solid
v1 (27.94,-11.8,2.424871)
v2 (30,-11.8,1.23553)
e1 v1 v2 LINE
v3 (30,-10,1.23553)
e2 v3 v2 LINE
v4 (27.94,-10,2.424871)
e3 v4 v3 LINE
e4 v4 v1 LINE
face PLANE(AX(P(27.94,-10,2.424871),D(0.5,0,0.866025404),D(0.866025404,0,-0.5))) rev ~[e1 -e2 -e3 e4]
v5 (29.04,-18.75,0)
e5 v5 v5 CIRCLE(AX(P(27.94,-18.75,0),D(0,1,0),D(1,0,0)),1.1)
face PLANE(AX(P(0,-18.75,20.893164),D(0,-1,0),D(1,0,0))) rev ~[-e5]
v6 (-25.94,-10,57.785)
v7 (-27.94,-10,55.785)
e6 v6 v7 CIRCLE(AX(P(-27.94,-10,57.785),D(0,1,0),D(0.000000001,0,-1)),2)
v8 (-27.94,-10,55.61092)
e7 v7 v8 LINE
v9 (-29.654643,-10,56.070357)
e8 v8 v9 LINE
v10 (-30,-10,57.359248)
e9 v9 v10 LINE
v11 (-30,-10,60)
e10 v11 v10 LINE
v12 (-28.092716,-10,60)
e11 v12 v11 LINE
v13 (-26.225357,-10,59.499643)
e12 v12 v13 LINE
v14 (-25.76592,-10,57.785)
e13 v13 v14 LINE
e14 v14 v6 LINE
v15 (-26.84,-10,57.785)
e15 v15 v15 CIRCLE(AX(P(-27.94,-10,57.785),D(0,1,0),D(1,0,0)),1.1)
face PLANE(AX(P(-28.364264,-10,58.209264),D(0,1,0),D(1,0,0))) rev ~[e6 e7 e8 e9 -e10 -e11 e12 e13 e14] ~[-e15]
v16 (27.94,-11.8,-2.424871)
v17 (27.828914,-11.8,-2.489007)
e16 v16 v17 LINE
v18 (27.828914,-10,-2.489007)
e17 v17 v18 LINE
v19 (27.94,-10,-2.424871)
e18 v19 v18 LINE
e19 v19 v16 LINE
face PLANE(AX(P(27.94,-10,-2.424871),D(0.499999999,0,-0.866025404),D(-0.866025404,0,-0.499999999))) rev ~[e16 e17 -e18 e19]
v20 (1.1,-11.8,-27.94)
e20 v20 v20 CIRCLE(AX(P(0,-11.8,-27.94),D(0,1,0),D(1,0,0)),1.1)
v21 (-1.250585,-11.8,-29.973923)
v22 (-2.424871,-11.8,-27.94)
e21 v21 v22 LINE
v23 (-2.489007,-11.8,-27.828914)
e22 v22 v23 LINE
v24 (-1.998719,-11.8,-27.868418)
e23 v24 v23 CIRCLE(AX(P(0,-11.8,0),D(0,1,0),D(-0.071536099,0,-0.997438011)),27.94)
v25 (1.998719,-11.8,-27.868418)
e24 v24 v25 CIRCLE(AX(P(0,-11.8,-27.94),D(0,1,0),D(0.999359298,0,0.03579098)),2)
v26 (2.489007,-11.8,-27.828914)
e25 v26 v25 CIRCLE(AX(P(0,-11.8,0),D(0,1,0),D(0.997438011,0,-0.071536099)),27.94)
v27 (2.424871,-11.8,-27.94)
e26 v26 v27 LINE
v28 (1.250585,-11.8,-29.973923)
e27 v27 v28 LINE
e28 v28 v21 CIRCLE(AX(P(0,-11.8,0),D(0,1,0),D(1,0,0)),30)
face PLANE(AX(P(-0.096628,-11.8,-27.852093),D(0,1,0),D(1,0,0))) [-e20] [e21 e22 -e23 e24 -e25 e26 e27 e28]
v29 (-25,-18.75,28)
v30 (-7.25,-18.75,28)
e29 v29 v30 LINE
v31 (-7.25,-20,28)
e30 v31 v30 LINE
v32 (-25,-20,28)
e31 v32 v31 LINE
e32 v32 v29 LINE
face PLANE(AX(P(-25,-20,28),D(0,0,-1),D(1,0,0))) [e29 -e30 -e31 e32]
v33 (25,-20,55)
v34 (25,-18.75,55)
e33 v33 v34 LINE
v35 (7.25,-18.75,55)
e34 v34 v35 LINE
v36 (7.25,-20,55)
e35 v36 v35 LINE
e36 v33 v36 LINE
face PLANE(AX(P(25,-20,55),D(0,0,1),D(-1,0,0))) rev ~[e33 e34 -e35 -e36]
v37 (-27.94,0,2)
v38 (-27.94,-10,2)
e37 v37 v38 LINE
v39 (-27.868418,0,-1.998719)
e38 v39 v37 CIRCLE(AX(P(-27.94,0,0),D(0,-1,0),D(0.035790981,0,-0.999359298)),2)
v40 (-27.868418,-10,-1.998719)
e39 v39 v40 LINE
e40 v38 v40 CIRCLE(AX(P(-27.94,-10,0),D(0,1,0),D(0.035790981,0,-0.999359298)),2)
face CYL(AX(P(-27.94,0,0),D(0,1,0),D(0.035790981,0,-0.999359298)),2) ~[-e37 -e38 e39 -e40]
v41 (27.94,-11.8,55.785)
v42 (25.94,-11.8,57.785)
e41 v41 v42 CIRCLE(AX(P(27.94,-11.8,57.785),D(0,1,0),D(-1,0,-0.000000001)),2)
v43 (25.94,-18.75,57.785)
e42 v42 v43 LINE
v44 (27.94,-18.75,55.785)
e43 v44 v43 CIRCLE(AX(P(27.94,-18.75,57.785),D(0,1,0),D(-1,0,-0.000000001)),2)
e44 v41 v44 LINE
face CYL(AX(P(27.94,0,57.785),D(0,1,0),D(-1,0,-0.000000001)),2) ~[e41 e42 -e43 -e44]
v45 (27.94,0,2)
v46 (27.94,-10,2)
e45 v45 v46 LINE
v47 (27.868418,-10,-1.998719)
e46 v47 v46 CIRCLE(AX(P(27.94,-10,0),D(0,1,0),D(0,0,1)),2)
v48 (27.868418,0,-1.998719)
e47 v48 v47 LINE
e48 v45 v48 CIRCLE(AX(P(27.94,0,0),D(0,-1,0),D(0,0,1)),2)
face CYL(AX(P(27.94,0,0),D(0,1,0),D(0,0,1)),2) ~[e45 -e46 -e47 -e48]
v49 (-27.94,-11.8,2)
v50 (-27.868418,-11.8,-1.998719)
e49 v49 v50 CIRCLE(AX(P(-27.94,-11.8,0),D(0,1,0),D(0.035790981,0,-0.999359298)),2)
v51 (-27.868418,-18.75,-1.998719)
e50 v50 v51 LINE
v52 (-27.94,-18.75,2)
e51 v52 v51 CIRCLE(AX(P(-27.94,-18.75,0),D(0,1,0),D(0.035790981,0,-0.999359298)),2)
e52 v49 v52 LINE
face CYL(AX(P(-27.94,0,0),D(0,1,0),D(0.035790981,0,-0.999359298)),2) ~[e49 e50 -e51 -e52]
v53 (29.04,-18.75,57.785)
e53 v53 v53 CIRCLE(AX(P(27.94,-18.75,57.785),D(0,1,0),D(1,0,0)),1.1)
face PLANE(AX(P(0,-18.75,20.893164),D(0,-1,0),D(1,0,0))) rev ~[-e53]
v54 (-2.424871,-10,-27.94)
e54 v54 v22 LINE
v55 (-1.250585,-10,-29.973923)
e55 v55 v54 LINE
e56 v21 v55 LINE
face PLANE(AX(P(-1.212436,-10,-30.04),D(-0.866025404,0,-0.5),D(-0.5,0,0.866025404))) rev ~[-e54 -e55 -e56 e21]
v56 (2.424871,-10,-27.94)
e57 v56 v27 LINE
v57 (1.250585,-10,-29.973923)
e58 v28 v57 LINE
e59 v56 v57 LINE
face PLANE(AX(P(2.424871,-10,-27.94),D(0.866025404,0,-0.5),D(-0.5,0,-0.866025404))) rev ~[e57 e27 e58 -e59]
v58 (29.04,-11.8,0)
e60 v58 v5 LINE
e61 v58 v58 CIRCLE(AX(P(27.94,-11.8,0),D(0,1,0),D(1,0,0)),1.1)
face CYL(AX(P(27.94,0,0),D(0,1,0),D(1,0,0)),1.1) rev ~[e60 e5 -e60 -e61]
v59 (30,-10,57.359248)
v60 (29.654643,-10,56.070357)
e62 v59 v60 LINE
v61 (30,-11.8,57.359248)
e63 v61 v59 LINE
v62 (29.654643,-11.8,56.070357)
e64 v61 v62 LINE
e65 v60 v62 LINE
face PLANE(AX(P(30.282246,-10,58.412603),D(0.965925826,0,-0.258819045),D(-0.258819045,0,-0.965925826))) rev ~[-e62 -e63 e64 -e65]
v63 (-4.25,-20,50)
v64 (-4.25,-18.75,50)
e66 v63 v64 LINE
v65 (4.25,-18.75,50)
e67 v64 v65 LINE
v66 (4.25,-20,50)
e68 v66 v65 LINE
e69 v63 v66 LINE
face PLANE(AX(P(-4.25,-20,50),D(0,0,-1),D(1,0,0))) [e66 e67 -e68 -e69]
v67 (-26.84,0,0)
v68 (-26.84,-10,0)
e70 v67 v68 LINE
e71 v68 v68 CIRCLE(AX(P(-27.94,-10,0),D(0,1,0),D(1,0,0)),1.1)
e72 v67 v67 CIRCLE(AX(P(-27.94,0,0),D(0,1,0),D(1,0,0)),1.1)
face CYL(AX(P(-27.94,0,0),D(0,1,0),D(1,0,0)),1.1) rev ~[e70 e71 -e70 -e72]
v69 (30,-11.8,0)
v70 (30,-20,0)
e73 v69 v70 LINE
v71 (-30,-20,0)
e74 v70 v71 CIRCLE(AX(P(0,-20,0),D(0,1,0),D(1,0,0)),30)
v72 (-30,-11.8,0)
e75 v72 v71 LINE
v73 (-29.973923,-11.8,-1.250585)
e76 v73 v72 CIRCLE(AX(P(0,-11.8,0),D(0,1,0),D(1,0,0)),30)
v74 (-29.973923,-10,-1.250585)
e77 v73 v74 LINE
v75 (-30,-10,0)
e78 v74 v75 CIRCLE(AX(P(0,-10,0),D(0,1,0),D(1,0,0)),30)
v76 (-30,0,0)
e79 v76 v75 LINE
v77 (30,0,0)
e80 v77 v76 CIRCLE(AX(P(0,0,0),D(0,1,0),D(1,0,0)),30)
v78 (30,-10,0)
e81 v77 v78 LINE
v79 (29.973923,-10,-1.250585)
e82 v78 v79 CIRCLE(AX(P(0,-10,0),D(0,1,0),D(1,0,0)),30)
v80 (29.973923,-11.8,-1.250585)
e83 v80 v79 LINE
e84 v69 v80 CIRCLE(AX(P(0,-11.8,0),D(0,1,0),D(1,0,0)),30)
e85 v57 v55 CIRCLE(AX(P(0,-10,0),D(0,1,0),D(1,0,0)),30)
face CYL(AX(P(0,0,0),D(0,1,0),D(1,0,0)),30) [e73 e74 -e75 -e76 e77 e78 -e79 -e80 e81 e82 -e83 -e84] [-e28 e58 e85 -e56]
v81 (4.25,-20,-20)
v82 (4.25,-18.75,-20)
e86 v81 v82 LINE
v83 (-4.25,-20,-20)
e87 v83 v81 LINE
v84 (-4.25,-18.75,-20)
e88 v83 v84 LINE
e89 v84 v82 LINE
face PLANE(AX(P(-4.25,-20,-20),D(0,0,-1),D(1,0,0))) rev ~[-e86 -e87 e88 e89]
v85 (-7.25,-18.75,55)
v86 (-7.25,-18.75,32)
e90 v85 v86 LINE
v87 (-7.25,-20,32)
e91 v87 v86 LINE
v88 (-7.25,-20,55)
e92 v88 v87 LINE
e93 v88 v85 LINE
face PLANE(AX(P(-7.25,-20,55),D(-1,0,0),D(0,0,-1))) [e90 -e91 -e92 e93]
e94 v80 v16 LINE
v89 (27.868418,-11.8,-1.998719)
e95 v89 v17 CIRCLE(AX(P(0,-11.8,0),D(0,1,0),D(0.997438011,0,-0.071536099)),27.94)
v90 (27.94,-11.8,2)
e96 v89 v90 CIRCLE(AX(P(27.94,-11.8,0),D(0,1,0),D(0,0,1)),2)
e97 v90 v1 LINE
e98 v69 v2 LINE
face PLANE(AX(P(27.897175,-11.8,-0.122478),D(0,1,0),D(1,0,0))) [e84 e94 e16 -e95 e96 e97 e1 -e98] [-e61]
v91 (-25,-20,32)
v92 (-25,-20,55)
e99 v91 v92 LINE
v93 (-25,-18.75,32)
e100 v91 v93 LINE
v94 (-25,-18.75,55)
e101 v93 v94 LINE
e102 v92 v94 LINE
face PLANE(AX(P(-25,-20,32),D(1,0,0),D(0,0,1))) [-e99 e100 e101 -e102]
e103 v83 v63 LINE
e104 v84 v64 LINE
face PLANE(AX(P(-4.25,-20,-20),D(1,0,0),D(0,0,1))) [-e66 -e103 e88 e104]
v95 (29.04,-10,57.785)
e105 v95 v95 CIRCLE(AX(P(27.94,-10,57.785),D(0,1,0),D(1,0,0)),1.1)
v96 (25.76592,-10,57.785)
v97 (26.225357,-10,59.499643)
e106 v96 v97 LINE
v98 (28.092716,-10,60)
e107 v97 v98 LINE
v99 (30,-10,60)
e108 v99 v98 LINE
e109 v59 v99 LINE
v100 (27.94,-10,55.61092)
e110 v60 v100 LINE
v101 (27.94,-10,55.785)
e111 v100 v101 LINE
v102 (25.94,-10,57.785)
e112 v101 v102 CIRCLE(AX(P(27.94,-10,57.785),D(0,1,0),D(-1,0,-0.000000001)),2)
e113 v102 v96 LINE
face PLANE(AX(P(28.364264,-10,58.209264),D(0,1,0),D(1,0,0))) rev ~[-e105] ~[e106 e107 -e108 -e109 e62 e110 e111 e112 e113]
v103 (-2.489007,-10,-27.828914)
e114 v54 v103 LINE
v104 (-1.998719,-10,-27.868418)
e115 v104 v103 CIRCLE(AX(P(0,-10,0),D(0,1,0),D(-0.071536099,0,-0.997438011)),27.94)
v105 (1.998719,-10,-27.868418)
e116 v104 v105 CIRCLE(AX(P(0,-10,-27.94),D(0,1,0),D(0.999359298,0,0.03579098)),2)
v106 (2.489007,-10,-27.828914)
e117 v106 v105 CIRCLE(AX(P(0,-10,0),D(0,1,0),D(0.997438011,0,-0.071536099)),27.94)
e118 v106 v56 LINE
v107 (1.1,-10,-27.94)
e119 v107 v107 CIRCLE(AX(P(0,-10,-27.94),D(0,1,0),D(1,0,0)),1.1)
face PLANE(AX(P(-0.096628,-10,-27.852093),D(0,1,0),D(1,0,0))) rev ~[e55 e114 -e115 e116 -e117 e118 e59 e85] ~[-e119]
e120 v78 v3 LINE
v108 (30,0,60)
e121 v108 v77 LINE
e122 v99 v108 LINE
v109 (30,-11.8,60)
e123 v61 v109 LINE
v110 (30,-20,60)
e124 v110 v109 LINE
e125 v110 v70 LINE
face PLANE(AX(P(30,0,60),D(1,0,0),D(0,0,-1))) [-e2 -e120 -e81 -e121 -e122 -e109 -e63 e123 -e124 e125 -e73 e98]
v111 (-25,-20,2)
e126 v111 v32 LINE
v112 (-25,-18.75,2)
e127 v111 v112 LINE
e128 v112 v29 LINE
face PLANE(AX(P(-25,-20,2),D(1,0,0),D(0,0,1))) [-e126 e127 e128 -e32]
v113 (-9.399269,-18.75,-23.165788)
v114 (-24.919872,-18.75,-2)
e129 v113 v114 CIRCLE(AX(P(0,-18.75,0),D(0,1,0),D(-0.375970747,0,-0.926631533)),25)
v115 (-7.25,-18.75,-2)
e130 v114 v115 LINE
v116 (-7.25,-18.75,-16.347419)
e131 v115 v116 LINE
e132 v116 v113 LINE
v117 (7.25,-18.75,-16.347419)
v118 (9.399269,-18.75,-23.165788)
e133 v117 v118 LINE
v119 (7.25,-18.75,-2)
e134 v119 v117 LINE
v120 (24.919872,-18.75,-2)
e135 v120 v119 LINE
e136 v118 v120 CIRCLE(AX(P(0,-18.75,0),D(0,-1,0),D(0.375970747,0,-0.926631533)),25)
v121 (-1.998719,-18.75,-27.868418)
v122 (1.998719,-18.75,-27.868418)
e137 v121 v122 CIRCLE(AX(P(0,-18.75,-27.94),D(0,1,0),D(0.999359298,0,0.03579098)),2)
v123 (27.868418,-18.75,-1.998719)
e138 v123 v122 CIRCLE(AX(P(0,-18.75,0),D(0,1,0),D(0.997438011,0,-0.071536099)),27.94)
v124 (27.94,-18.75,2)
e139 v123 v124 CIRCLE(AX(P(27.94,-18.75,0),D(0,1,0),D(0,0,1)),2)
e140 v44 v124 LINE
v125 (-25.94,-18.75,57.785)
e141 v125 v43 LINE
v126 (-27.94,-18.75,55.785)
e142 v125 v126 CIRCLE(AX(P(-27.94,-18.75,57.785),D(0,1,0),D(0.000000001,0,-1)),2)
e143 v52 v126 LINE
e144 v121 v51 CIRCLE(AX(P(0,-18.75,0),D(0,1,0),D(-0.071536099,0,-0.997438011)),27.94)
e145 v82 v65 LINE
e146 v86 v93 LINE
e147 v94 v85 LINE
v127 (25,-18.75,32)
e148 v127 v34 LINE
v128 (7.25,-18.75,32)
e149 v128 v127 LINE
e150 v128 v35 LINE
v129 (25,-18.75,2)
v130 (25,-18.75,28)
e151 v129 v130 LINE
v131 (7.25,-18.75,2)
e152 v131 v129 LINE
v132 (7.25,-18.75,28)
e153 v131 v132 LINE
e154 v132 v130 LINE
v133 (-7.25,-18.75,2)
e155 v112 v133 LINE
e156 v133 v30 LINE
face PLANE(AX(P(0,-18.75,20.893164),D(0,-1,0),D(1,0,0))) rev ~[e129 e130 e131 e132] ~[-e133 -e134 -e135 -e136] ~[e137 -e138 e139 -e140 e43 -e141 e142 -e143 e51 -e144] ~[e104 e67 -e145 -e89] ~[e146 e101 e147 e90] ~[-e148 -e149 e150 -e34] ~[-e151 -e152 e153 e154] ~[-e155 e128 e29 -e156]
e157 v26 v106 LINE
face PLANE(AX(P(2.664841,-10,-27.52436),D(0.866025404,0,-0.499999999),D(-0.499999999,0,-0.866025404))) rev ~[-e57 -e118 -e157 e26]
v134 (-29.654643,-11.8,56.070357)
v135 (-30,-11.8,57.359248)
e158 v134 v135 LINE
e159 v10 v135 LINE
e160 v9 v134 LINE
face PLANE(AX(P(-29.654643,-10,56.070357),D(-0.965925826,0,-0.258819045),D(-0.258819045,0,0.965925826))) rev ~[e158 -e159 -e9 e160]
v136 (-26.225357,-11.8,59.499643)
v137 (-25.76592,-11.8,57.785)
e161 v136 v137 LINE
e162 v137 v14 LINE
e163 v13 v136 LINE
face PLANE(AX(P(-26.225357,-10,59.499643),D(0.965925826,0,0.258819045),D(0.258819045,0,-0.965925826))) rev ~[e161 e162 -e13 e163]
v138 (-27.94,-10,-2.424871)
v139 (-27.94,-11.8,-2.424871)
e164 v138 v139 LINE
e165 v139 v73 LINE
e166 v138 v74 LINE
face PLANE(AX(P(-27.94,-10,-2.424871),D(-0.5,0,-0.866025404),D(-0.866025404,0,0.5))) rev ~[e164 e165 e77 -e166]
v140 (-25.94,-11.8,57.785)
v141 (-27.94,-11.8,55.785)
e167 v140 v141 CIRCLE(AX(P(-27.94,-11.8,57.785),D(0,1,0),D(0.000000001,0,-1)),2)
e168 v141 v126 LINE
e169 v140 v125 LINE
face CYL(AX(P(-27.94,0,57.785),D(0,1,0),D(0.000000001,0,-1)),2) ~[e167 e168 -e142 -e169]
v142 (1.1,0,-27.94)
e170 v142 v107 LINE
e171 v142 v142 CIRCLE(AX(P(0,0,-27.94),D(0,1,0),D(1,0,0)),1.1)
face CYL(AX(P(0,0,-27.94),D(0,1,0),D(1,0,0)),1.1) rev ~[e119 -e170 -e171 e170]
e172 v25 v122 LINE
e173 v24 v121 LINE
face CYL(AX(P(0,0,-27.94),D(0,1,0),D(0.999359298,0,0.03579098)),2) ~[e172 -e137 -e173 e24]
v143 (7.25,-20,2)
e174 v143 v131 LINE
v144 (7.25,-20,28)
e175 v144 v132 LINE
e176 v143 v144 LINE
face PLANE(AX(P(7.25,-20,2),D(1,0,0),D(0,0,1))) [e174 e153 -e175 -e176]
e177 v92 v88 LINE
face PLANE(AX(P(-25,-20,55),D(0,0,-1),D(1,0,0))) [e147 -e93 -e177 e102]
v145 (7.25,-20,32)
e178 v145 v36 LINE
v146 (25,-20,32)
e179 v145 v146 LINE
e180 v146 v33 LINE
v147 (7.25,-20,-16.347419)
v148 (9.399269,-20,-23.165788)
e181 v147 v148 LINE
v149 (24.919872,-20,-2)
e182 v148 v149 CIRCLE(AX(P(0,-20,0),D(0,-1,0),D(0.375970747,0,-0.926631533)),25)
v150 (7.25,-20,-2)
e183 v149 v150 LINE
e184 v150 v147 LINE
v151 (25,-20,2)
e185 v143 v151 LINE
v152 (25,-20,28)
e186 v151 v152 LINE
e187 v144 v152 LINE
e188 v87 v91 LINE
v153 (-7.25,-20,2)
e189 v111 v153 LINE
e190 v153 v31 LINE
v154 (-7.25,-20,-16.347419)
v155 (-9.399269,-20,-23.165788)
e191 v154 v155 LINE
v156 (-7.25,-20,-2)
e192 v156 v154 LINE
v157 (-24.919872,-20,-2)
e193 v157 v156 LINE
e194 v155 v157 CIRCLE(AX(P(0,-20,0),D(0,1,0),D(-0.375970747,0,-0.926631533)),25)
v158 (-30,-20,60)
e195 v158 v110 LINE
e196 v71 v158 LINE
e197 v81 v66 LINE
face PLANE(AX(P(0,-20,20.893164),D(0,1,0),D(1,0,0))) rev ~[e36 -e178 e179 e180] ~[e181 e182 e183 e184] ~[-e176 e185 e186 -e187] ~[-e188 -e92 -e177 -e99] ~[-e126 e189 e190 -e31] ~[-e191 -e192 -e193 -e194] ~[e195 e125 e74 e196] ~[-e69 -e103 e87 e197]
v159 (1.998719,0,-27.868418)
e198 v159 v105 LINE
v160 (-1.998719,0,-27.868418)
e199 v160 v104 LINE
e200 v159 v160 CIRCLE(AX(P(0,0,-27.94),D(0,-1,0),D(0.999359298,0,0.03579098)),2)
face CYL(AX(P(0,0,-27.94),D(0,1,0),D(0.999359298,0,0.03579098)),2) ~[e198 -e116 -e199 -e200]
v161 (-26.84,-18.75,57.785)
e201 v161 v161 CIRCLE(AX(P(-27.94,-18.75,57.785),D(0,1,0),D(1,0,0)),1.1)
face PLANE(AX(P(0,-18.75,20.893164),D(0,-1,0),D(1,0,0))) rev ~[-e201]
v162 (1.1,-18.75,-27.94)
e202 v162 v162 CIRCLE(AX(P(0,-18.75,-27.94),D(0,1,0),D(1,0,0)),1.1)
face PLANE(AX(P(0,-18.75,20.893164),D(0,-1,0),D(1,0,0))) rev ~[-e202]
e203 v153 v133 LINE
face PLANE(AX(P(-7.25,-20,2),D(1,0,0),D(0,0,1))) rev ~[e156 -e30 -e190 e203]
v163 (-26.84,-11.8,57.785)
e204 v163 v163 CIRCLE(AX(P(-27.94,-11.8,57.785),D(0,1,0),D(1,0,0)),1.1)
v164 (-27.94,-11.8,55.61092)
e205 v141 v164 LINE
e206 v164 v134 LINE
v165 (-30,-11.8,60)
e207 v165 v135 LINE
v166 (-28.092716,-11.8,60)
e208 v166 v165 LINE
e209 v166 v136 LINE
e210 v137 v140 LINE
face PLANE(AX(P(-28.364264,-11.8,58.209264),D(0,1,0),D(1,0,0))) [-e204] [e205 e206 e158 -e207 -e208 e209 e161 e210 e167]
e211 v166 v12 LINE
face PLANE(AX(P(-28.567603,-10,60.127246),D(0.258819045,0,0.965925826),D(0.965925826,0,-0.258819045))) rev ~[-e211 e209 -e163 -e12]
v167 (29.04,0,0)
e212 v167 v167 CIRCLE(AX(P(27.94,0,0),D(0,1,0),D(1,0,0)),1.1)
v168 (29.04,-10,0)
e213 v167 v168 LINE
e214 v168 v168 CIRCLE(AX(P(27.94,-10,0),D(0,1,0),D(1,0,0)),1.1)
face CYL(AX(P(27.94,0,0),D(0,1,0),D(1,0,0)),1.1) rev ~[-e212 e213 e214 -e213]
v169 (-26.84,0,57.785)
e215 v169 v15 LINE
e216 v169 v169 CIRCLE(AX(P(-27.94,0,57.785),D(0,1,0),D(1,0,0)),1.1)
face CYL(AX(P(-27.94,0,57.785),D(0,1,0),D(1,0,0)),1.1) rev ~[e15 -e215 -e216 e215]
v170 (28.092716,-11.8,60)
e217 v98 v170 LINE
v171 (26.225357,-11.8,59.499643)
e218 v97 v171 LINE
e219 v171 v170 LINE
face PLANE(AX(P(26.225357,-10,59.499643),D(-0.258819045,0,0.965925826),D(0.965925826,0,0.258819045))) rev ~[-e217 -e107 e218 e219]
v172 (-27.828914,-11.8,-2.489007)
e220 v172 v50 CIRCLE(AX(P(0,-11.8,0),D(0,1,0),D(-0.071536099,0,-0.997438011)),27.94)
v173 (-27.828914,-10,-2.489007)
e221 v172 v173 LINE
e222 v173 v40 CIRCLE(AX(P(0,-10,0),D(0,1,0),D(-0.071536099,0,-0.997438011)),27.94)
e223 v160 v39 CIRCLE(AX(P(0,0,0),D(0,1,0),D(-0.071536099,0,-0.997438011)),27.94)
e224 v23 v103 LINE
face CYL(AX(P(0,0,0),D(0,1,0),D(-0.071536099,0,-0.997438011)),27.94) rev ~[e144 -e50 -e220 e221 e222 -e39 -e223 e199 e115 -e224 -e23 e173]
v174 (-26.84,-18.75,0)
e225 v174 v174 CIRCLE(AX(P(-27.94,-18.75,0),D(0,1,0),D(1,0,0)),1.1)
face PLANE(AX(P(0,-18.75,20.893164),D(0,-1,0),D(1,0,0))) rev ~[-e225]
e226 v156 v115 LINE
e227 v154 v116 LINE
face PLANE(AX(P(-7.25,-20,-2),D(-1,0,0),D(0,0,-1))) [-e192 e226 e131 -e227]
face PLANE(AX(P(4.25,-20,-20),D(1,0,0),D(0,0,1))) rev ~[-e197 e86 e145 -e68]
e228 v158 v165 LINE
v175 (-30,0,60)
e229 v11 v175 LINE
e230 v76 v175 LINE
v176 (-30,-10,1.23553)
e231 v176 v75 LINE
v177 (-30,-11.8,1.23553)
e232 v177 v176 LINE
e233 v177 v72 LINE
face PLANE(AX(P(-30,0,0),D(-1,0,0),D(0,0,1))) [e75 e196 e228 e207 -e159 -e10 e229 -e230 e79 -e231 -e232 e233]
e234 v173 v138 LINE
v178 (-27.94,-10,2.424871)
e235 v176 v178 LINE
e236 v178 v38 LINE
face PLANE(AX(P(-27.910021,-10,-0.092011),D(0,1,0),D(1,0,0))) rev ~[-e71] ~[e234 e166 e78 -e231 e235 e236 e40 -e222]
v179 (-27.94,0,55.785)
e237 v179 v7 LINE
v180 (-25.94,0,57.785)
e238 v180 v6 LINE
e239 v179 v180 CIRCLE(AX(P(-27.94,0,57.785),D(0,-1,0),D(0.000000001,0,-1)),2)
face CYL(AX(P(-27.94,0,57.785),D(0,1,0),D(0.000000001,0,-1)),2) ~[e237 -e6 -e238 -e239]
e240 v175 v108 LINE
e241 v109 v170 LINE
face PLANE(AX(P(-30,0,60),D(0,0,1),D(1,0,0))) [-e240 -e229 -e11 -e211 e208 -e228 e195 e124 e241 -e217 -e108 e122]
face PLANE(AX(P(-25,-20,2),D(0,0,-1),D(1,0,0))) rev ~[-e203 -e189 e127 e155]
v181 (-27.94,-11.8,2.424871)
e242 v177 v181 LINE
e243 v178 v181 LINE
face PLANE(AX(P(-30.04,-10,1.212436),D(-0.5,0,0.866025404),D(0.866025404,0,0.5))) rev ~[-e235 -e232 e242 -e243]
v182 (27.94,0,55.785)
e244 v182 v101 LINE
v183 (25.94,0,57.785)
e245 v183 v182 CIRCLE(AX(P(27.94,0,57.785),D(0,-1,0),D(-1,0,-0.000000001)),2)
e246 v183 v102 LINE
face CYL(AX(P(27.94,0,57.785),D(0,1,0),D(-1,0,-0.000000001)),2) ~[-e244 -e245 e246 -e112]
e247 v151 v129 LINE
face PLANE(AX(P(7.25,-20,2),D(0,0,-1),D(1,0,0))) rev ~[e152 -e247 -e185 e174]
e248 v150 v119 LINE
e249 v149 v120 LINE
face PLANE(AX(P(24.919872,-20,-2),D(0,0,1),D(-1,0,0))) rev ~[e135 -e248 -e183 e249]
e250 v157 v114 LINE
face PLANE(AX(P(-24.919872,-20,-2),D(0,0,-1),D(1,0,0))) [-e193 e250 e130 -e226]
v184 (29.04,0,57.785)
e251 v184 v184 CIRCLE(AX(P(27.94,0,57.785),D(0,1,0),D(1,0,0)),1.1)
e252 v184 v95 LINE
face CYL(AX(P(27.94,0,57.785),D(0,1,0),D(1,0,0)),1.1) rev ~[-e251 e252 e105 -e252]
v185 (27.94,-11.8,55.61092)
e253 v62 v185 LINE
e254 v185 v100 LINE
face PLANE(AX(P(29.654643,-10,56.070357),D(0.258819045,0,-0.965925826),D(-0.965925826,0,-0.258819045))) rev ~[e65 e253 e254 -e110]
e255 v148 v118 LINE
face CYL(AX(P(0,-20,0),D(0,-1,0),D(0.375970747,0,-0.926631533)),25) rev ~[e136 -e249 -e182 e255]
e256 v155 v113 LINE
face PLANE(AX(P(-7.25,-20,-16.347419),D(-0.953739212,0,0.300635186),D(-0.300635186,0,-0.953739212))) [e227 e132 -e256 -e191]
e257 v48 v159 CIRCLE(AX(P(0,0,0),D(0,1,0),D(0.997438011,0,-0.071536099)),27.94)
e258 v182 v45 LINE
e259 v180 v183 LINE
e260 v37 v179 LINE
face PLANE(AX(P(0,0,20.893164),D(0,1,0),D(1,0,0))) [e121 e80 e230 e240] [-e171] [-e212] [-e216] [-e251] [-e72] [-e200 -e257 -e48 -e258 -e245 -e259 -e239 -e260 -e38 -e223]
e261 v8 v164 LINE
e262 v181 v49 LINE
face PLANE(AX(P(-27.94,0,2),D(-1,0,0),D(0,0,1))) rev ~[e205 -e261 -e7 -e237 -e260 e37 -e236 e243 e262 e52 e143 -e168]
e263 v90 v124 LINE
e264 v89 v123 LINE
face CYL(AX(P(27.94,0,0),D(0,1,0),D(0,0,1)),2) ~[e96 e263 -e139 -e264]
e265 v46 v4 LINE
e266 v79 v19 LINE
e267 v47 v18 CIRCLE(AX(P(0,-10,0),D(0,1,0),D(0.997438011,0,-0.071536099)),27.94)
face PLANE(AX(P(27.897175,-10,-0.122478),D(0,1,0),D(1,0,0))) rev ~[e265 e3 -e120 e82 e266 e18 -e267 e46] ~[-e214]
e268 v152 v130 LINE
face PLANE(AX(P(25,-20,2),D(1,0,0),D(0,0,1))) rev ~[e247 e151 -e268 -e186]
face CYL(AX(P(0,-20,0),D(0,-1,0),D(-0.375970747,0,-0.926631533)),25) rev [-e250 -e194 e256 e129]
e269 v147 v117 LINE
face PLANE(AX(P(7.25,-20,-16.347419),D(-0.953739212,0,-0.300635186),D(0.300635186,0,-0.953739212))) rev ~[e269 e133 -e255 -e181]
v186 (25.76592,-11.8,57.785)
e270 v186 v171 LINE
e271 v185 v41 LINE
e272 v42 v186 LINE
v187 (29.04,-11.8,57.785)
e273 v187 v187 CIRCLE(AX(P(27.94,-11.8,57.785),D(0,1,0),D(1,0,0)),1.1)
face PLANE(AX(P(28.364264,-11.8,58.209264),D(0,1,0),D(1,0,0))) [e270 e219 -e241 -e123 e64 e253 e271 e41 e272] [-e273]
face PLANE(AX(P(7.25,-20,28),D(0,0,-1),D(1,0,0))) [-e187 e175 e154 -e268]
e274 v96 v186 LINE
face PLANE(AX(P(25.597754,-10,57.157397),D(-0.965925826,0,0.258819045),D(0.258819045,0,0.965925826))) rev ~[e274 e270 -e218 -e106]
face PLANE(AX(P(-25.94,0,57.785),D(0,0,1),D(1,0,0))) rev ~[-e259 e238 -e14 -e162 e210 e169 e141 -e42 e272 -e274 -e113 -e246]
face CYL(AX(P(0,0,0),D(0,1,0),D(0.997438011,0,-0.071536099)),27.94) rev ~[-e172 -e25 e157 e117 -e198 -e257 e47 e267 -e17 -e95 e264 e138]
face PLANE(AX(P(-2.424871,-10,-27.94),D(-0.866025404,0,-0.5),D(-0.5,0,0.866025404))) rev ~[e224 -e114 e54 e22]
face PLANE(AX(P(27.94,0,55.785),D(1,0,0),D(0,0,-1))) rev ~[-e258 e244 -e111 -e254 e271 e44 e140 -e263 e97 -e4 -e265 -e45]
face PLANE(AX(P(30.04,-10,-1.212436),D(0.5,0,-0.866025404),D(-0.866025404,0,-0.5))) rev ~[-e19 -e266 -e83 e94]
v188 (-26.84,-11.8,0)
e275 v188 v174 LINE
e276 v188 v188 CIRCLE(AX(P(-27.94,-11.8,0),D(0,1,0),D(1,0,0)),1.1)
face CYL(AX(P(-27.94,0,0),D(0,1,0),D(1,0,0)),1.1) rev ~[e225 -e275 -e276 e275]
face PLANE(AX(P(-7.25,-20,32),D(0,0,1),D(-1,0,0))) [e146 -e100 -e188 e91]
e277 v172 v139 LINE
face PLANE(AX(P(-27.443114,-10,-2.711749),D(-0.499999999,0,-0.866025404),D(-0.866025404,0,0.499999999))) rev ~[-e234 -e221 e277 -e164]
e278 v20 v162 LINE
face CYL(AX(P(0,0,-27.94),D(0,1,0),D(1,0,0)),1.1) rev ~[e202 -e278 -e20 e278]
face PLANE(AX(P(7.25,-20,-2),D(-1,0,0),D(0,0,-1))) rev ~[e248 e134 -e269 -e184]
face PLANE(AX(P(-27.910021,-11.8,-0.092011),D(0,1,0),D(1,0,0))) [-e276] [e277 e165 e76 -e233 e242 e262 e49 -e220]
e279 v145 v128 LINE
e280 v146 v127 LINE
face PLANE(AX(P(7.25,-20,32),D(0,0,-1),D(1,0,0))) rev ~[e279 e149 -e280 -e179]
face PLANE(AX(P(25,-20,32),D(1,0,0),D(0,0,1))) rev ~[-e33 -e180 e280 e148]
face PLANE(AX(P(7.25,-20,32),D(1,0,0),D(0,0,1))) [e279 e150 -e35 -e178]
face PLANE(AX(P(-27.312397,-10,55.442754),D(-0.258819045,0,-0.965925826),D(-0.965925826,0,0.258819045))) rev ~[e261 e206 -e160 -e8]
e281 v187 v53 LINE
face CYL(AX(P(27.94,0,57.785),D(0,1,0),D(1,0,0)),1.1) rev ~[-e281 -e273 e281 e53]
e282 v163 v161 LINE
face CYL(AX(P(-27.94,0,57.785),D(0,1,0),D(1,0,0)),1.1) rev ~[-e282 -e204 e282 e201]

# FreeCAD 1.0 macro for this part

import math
import FreeCAD as App
import Part
import Sketcher

V = App.Vector
Q = App.Units.Quantity

doc = App.newDocument("Part")
body = doc.addObject("PartDesign::Body", "Body")

# Sketch on XZ plane
sketch1 = body.newObject("Sketcher::SketchObject", "Sketch")
sketch1.AttachmentSupport = (doc.getObject("XZ_Plane"), [""])
sketch1.MapMode = "FlatFace"
sketch1.addGeometry(Part.LineSegment(V(-30, 0, 0), V(-30, 60, 0)), False)
sketch1.addGeometry(Part.LineSegment(V(-30, 60, 0), V(30, 60, 0)), False)
sketch1.addGeometry(Part.LineSegment(V(30, 60, 0), V(30, 0, 0)), False)
sketch1.addGeometry(Part.ArcOfCircle(Part.Circle(V(0, 0, 0), V(0, 0, 1), 30), math.radians(180), math.radians(360)), False)
sketch1.addGeometry(Part.Circle(V(-27.9, 57.8, 0), V(0, 0, 1), 1.1), False)
sketch1.addGeometry(Part.LineSegment(V(27.9, 2, 0), V(27.9, 55.8, 0)), False)
sketch1.addGeometry(Part.ArcOfCircle(Part.Circle(V(27.9, 57.8, 0), V(0, 0, 1), 2), math.radians(-180), math.radians(-90)), False)
sketch1.addGeometry(Part.LineSegment(V(25.9, 57.8, 0), V(-25.9, 57.8, 0)), False)
sketch1.addGeometry(Part.ArcOfCircle(Part.Circle(V(-27.9, 57.8, 0), V(0, 0, 1), 2), math.radians(-90), math.radians(0)), False)
sketch1.addGeometry(Part.LineSegment(V(-27.9, 55.8, 0), V(-27.9, 2, 0)), False)
sketch1.addGeometry(Part.ArcOfCircle(Part.Circle(V(-27.9, 0, 0), V(0, 0, 1), 2), math.radians(-88), math.radians(90)), False)
sketch1.addGeometry(Part.ArcOfCircle(Part.Circle(V(0, 0, 0), V(0, 0, 1), 27.9), math.radians(-176), math.radians(-94)), False)
sketch1.addGeometry(Part.ArcOfCircle(Part.Circle(V(0, -27.9, 0), V(0, 0, 1), 2), math.radians(2), math.radians(178)), False)
sketch1.addGeometry(Part.ArcOfCircle(Part.Circle(V(0, 0, 0), V(0, 0, 1), 27.9), math.radians(-86), math.radians(-4)), False)
sketch1.addGeometry(Part.ArcOfCircle(Part.Circle(V(27.9, 0, 0), V(0, 0, 1), 2), math.radians(90), math.radians(268)), False)
sketch1.addGeometry(Part.Circle(V(27.9, 57.8, 0), V(0, 0, 1), 1.1), False)
sketch1.addGeometry(Part.Circle(V(-27.9, 0, 0), V(0, 0, 1), 1.1), False)
sketch1.addGeometry(Part.Circle(V(0, -27.9, 0), V(0, 0, 1), 1.1), False)
sketch1.addGeometry(Part.Circle(V(27.9, 0, 0), V(0, 0, 1), 1.1), False)
sketch1.addConstraint(Sketcher.Constraint("Coincident", 0, 2, 1, 1))
sketch1.addConstraint(Sketcher.Constraint("Coincident", 1, 2, 2, 1))
sketch1.addConstraint(Sketcher.Constraint("Tangent", 2, 2, 3, 2))
sketch1.addConstraint(Sketcher.Constraint("Tangent", 3, 1, 0, 1))
sketch1.addConstraint(Sketcher.Constraint("Coincident", 5, 2, 6, 2))
sketch1.addConstraint(Sketcher.Constraint("Coincident", 6, 1, 7, 1))
sketch1.addConstraint(Sketcher.Constraint("Coincident", 7, 2, 8, 2))
sketch1.addConstraint(Sketcher.Constraint("Coincident", 8, 1, 9, 1))
sketch1.addConstraint(Sketcher.Constraint("Coincident", 9, 2, 10, 2))
sketch1.addConstraint(Sketcher.Constraint("Coincident", 10, 1, 11, 1))
sketch1.addConstraint(Sketcher.Constraint("Coincident", 11, 2, 12, 2))
sketch1.addConstraint(Sketcher.Constraint("Coincident", 12, 1, 13, 1))
sketch1.addConstraint(Sketcher.Constraint("Coincident", 13, 2, 14, 2))
sketch1.addConstraint(Sketcher.Constraint("Coincident", 14, 1, 5, 1))
sketch1.addConstraint(Sketcher.Constraint("Vertical", 0))
sketch1.addConstraint(Sketcher.Constraint("Horizontal", 1))
sketch1.addConstraint(Sketcher.Constraint("Vertical", 2))
sketch1.addConstraint(Sketcher.Constraint("Vertical", 5))
sketch1.addConstraint(Sketcher.Constraint("Horizontal", 7))
sketch1.addConstraint(Sketcher.Constraint("Vertical", 9))
sketch1.addConstraint(Sketcher.Constraint("Coincident", 3, 3, -1, 1))
sketch1.addConstraint(Sketcher.Constraint("Coincident", 11, 3, -1, 1))
sketch1.addConstraint(Sketcher.Constraint("Coincident", 13, 3, -1, 1))
sketch1.addConstraint(Sketcher.Constraint("Coincident", 8, 3, 4, 3))
sketch1.addConstraint(Sketcher.Constraint("Coincident", 15, 3, 6, 3))
sketch1.addConstraint(Sketcher.Constraint("Coincident", 16, 3, 10, 3))
sketch1.addConstraint(Sketcher.Constraint("Coincident", 17, 3, 12, 3))
sketch1.addConstraint(Sketcher.Constraint("Coincident", 18, 3, 14, 3))
sketch1.addConstraint(Sketcher.Constraint("Equal", 6, 8))
sketch1.addConstraint(Sketcher.Constraint("Equal", 8, 10))
sketch1.addConstraint(Sketcher.Constraint("Equal", 10, 12))
sketch1.addConstraint(Sketcher.Constraint("Equal", 11, 13))
sketch1.addConstraint(Sketcher.Constraint("Equal", 12, 14))
sketch1.addConstraint(Sketcher.Constraint("Equal", 4, 15))
sketch1.addConstraint(Sketcher.Constraint("Equal", 15, 16))
sketch1.addConstraint(Sketcher.Constraint("Equal", 16, 17))
sketch1.addConstraint(Sketcher.Constraint("Equal", 17, 18))
sketch1.addConstraint(Sketcher.Constraint("Symmetric", 10, 3, 14, 3, -1, 1))
sketch1.addConstraint(Sketcher.Constraint("Symmetric", 4, 3, 6, 3, -2))
sketch1.addConstraint(Sketcher.Constraint("Symmetric", 9, 2, 14, 1, -2))
sketch1.addConstraint(Sketcher.Constraint("PointOnObject", 12, 3, -2))
sketch1.addConstraint(Sketcher.Constraint("Horizontal", 15, 3, 6, 1))
sketch1.addConstraint(Sketcher.Constraint("Vertical", 8, 3, 10, 3))
sketch1.addConstraint(Sketcher.Constraint("Vertical", 18, 3, 5, 2))
sketch1.addConstraint(Sketcher.Constraint("Equal", 1, 0))
sketch1.addConstraint(Sketcher.Constraint("Radius", 3, 30.0))
sketch1.addConstraint(Sketcher.Constraint("Radius", 6, 2.0))
sketch1.addConstraint(Sketcher.Constraint("Diameter", 4, 2.2))
sketch1.addConstraint(Sketcher.Constraint("Radius", 11, 27.94))
sketch1.addConstraint(Sketcher.Constraint("DistanceX", 7, 2, 7, 1, 51.88))
sketch1.addConstraint(Sketcher.Constraint("DistanceY", 5, 1, 5, 2, 53.785))
sketch1.addConstraint(Sketcher.Constraint("DistanceY", 12, 3, -1, 1, 27.94))
pad1 = body.newObject("PartDesign::Pad", "Pad")
pad1.Profile = sketch1
pad1.Length = 20

# Sketch on XZ plane
sketch2 = body.newObject("Sketcher::SketchObject", "Sketch001")
sketch2.AttachmentSupport = (doc.getObject("XZ_Plane"), [""])
sketch2.MapMode = "FlatFace"
sketch2.AttachmentOffset = App.Placement(V(0, 0, 20), App.Rotation())
sketch2.addGeometry(Part.LineSegment(V(30, 0, 0), V(30, 60, 0)), False)
sketch2.addGeometry(Part.LineSegment(V(30, 60, 0), V(-30, 60, 0)), False)
sketch2.addGeometry(Part.LineSegment(V(-30, 60, 0), V(-30, 0, 0)), False)
sketch2.addGeometry(Part.ArcOfCircle(Part.Circle(V(0, 0, 0), V(0, 0, 1), 30), math.radians(180), math.radians(360)), False)
sketch2.addGeometry(Part.LineSegment(V(-7, -2, 0), V(-7, -16, 0)), False)
sketch2.addGeometry(Part.LineSegment(V(-7, -16, 0), V(-9, -23, 0)), False)
sketch2.addGeometry(Part.ArcOfCircle(Part.Circle(V(0, 0, 0), V(0, 0, 1), 25), math.radians(-175), math.radians(-112)), False)
sketch2.addGeometry(Part.LineSegment(V(-25, -2, 0), V(-7, -2, 0)), False)
sketch2.addGeometry(Part.LineSegment(V(-7, 2, 0), V(-25, 2, 0)), False)
sketch2.addGeometry(Part.LineSegment(V(-25, 2, 0), V(-25, 28, 0)), False)
sketch2.addGeometry(Part.LineSegment(V(-25, 28, 0), V(-7, 28, 0)), False)
sketch2.addGeometry(Part.LineSegment(V(-7, 28, 0), V(-7, 2, 0)), False)
sketch2.addGeometry(Part.LineSegment(V(9, -23, 0), V(7, -16, 0)), False)
sketch2.addGeometry(Part.LineSegment(V(7, -16, 0), V(7, -2, 0)), False)
sketch2.addGeometry(Part.LineSegment(V(7, -2, 0), V(25, -2, 0)), False)
sketch2.addGeometry(Part.ArcOfCircle(Part.Circle(V(0, 0, 0), V(0, 0, 1), 25), math.radians(-68), math.radians(-5)), False)
sketch2.addGeometry(Part.LineSegment(V(4, -20, 0), V(-4, -20, 0)), False)
sketch2.addGeometry(Part.LineSegment(V(-4, -20, 0), V(-4, 50, 0)), False)
sketch2.addGeometry(Part.LineSegment(V(-4, 50, 0), V(4, 50, 0)), False)
sketch2.addGeometry(Part.LineSegment(V(4, 50, 0), V(4, -20, 0)), False)
sketch2.addGeometry(Part.LineSegment(V(25, 2, 0), V(7, 2, 0)), False)
sketch2.addGeometry(Part.LineSegment(V(7, 2, 0), V(7, 28, 0)), False)
sketch2.addGeometry(Part.LineSegment(V(7, 28, 0), V(25, 28, 0)), False)
sketch2.addGeometry(Part.LineSegment(V(25, 28, 0), V(25, 2, 0)), False)
sketch2.addGeometry(Part.LineSegment(V(-7, 55, 0), V(-7, 32, 0)), False)
sketch2.addGeometry(Part.LineSegment(V(-7, 32, 0), V(-25, 32, 0)), False)
sketch2.addGeometry(Part.LineSegment(V(-25, 32, 0), V(-25, 55, 0)), False)
sketch2.addGeometry(Part.LineSegment(V(-25, 55, 0), V(-7, 55, 0)), False)
sketch2.addGeometry(Part.LineSegment(V(7, 32, 0), V(7, 55, 0)), False)
sketch2.addGeometry(Part.LineSegment(V(7, 55, 0), V(25, 55, 0)), False)
sketch2.addGeometry(Part.LineSegment(V(25, 55, 0), V(25, 32, 0)), False)
sketch2.addGeometry(Part.LineSegment(V(25, 32, 0), V(7, 32, 0)), False)
sketch2.addConstraint(Sketcher.Constraint("Coincident", 0, 2, 1, 1))
sketch2.addConstraint(Sketcher.Constraint("Coincident", 1, 2, 2, 1))
sketch2.addConstraint(Sketcher.Constraint("Tangent", 2, 2, 3, 1))
sketch2.addConstraint(Sketcher.Constraint("Tangent", 3, 2, 0, 1))
sketch2.addConstraint(Sketcher.Constraint("Coincident", 4, 2, 5, 1))
sketch2.addConstraint(Sketcher.Constraint("Coincident", 5, 2, 6, 2))
sketch2.addConstraint(Sketcher.Constraint("Coincident", 6, 1, 7, 1))
sketch2.addConstraint(Sketcher.Constraint("Coincident", 7, 2, 4, 1))
sketch2.addConstraint(Sketcher.Constraint("Coincident", 8, 2, 9, 1))
sketch2.addConstraint(Sketcher.Constraint("Coincident", 9, 2, 10, 1))
sketch2.addConstraint(Sketcher.Constraint("Coincident", 10, 2, 11, 1))
sketch2.addConstraint(Sketcher.Constraint("Coincident", 11, 2, 8, 1))
sketch2.addConstraint(Sketcher.Constraint("Coincident", 12, 2, 13, 1))
sketch2.addConstraint(Sketcher.Constraint("Coincident", 13, 2, 14, 1))
sketch2.addConstraint(Sketcher.Constraint("Coincident", 14, 2, 15, 2))
sketch2.addConstraint(Sketcher.Constraint("Coincident", 15, 1, 12, 1))
sketch2.addConstraint(Sketcher.Constraint("Coincident", 16, 2, 17, 1))
sketch2.addConstraint(Sketcher.Constraint("Coincident", 17, 2, 18, 1))
sketch2.addConstraint(Sketcher.Constraint("Coincident", 18, 2, 19, 1))
sketch2.addConstraint(Sketcher.Constraint("Coincident", 19, 2, 16, 1))
sketch2.addConstraint(Sketcher.Constraint("Coincident", 20, 2, 21, 1))
sketch2.addConstraint(Sketcher.Constraint("Coincident", 21, 2, 22, 1))
sketch2.addConstraint(Sketcher.Constraint("Coincident", 22, 2, 23, 1))
sketch2.addConstraint(Sketcher.Constraint("Coincident", 23, 2, 20, 1))
sketch2.addConstraint(Sketcher.Constraint("Coincident", 24, 2, 25, 1))
sketch2.addConstraint(Sketcher.Constraint("Coincident", 25, 2, 26, 1))
sketch2.addConstraint(Sketcher.Constraint("Coincident", 26, 2, 27, 1))
sketch2.addConstraint(Sketcher.Constraint("Coincident", 27, 2, 24, 1))
sketch2.addConstraint(Sketcher.Constraint("Coincident", 28, 2, 29, 1))
sketch2.addConstraint(Sketcher.Constraint("Coincident", 29, 2, 30, 1))
sketch2.addConstraint(Sketcher.Constraint("Coincident", 30, 2, 31, 1))
sketch2.addConstraint(Sketcher.Constraint("Coincident", 31, 2, 28, 1))
sketch2.addConstraint(Sketcher.Constraint("Vertical", 0))
sketch2.addConstraint(Sketcher.Constraint("Horizontal", 1))
sketch2.addConstraint(Sketcher.Constraint("Vertical", 2))
sketch2.addConstraint(Sketcher.Constraint("Vertical", 4))
sketch2.addConstraint(Sketcher.Constraint("Horizontal", 7))
sketch2.addConstraint(Sketcher.Constraint("Horizontal", 8))
sketch2.addConstraint(Sketcher.Constraint("Vertical", 9))
sketch2.addConstraint(Sketcher.Constraint("Horizontal", 10))
sketch2.addConstraint(Sketcher.Constraint("Vertical", 11))
sketch2.addConstraint(Sketcher.Constraint("Vertical", 13))
sketch2.addConstraint(Sketcher.Constraint("Horizontal", 14))
sketch2.addConstraint(Sketcher.Constraint("Horizontal", 16))
sketch2.addConstraint(Sketcher.Constraint("Vertical", 17))
sketch2.addConstraint(Sketcher.Constraint("Horizontal", 18))
sketch2.addConstraint(Sketcher.Constraint("Vertical", 19))
sketch2.addConstraint(Sketcher.Constraint("Horizontal", 20))
sketch2.addConstraint(Sketcher.Constraint("Vertical", 21))
sketch2.addConstraint(Sketcher.Constraint("Horizontal", 22))
sketch2.addConstraint(Sketcher.Constraint("Vertical", 23))
sketch2.addConstraint(Sketcher.Constraint("Vertical", 24))
sketch2.addConstraint(Sketcher.Constraint("Horizontal", 25))
sketch2.addConstraint(Sketcher.Constraint("Vertical", 26))
sketch2.addConstraint(Sketcher.Constraint("Horizontal", 27))
sketch2.addConstraint(Sketcher.Constraint("Vertical", 28))
sketch2.addConstraint(Sketcher.Constraint("Horizontal", 29))
sketch2.addConstraint(Sketcher.Constraint("Vertical", 30))
sketch2.addConstraint(Sketcher.Constraint("Horizontal", 31))
sketch2.addConstraint(Sketcher.Constraint("Coincident", 3, 3, -1, 1))
sketch2.addConstraint(Sketcher.Constraint("Coincident", 6, 3, -1, 1))
sketch2.addConstraint(Sketcher.Constraint("Coincident", 15, 3, -1, 1))
sketch2.addConstraint(Sketcher.Constraint("Equal", 6, 15))
sketch2.addConstraint(Sketcher.Constraint("Symmetric", 11, 2, 13, 2, -1, 1))
sketch2.addConstraint(Sketcher.Constraint("Symmetric", 7, 2, 20, 2, -1, 1))
sketch2.addConstraint(Sketcher.Constraint("Symmetric", 4, 2, 12, 2, -2))
sketch2.addConstraint(Sketcher.Constraint("Symmetric", 9, 2, 22, 2, -2))
sketch2.addConstraint(Sketcher.Constraint("Symmetric", 27, 2, 28, 2, -2))
sketch2.addConstraint(Sketcher.Constraint("Symmetric", 25, 2, 30, 2, -2))
sketch2.addConstraint(Sketcher.Constraint("Horizontal", 7, 2, 13, 2))
sketch2.addConstraint(Sketcher.Constraint("Horizontal", 5, 2, 15, 1))
sketch2.addConstraint(Sketcher.Constraint("Vertical", 11, 2, 24, 2))
sketch2.addConstraint(Sketcher.Constraint("Vertical", 9, 2, 25, 2))
sketch2.addConstraint(Sketcher.Constraint("Equal", 1, 0))
sketch2.addConstraint(Sketcher.Constraint("Radius", 3, 30.0))
sketch2.addConstraint(Sketcher.Constraint("Radius", 6, 25.0))
sketch2.addConstraint(Sketcher.Constraint("DistanceY", 9, 1, 9, 2, 26.0))
sketch2.addConstraint(Sketcher.Constraint("DistanceY", 17, 1, 17, 2, 70.0))
sketch2.addConstraint(Sketcher.Constraint("DistanceY", 24, 2, 24, 1, 23.0))
sketch2.addConstraint(Sketcher.Constraint("DistanceX", 16, 2, 16, 1, 8.5))
sketch2.addConstraint(Sketcher.Constraint("DistanceY", 6, 1, -1, 1, 2.0))
sketch2.addConstraint(Sketcher.Constraint("DistanceX", 8, 2, -1, 1, 25.0))
sketch2.addConstraint(Sketcher.Constraint("DistanceY", 16, 2, -1, 1, 20.0))
sketch2.addConstraint(Sketcher.Constraint("DistanceY", -1, 1, 24, 2, 32.0))
sketch2.addConstraint(Sketcher.Constraint("DistanceX", 4, 2, 16, 2, 3.0))
sketch2.addConstraint(Sketcher.Constraint("DistanceX", 19, 2, 12, 2, 3.0))
sketch2.addConstraint(Sketcher.Constraint("DistanceY", 4, 2, 4, 1, 14.347419))
sketch2.addConstraint(Sketcher.Constraint("DistanceX", 5, 2, -1, 1, 9.399269))
pad2 = body.newObject("PartDesign::Pad", "Pad001")
pad2.Profile = sketch2
pad2.Length = 1.25
pad2.Reversed = True

# Sketch on XZ plane
sketch3 = body.newObject("Sketcher::SketchObject", "Sketch002")
sketch3.AttachmentSupport = (doc.getObject("XZ_Plane"), [""])
sketch3.MapMode = "FlatFace"
sketch3.AttachmentOffset = App.Placement(V(0, 0, 10), App.Rotation())
sketch3.addGeometry(Part.LineSegment(V(2.42, -27.94, 0), V(1.21, -30.04, 0)), False)
sketch3.addGeometry(Part.LineSegment(V(1.21, -30.04, 0), V(-1.21, -30.04, 0)), False)
sketch3.addGeometry(Part.LineSegment(V(-1.21, -30.04, 0), V(-2.42, -27.94, 0)), False)
sketch3.addGeometry(Part.LineSegment(V(-2.42, -27.94, 0), V(-2.92, -27.08, 0)), False)
sketch3.addGeometry(Part.LineSegment(V(-2.92, -27.08, 0), V(-1.21, -25.84, 0)), False)
sketch3.addGeometry(Part.LineSegment(V(-1.21, -25.84, 0), V(1.21, -25.84, 0)), False)
sketch3.addGeometry(Part.LineSegment(V(1.21, -25.84, 0), V(2.66, -27.52, 0)), False)
sketch3.addGeometry(Part.LineSegment(V(2.66, -27.52, 0), V(2.42, -27.94, 0)), False)
sketch3.addGeometry(Part.LineSegment(V(27.94, 2.42, 0), V(30.04, 1.21, 0)), False)
sketch3.addGeometry(Part.LineSegment(V(30.04, 1.21, 0), V(30.04, -1.21, 0)), False)
sketch3.addGeometry(Part.LineSegment(V(30.04, -1.21, 0), V(27.94, -2.42, 0)), False)
sketch3.addGeometry(Part.LineSegment(V(27.94, -2.42, 0), V(27.3, -2.8, 0)), False)
sketch3.addGeometry(Part.LineSegment(V(27.3, -2.8, 0), V(25.84, -1.21, 0)), False)
sketch3.addGeometry(Part.LineSegment(V(25.84, -1.21, 0), V(25.84, 1.21, 0)), False)
sketch3.addGeometry(Part.LineSegment(V(25.84, 1.21, 0), V(27.94, 2.42, 0)), False)
sketch3.addGeometry(Part.LineSegment(V(30.28, 58.41, 0), V(29.65, 56.07, 0)), False)
sketch3.addGeometry(Part.LineSegment(V(29.65, 56.07, 0), V(27.31, 55.44, 0)), False)
sketch3.addGeometry(Part.LineSegment(V(27.31, 55.44, 0), V(25.6, 57.16, 0)), False)
sketch3.addGeometry(Part.LineSegment(V(25.6, 57.16, 0), V(26.23, 59.5, 0)), False)
sketch3.addGeometry(Part.LineSegment(V(26.23, 59.5, 0), V(28.57, 60.13, 0)), False)
sketch3.addGeometry(Part.LineSegment(V(28.57, 60.13, 0), V(30.91, 60.75, 0)), False)
sketch3.addGeometry(Part.LineSegment(V(30.91, 60.75, 0), V(30.28, 58.41, 0)), False)
sketch3.addGeometry(Part.LineSegment(V(-25.6, 57.16, 0), V(-27.31, 55.44, 0)), False)
sketch3.addGeometry(Part.LineSegment(V(-27.31, 55.44, 0), V(-29.65, 56.07, 0)), False)
sketch3.addGeometry(Part.LineSegment(V(-29.65, 56.07, 0), V(-30.28, 58.41, 0)), False)
sketch3.addGeometry(Part.LineSegment(V(-30.28, 58.41, 0), V(-30.91, 60.75, 0)), False)
sketch3.addGeometry(Part.LineSegment(V(-30.91, 60.75, 0), V(-28.57, 60.13, 0)), False)
sketch3.addGeometry(Part.LineSegment(V(-28.57, 60.13, 0), V(-26.23, 59.5, 0)), False)
sketch3.addGeometry(Part.LineSegment(V(-26.23, 59.5, 0), V(-25.6, 57.16, 0)), False)
sketch3.addGeometry(Part.LineSegment(V(-30.04, -1.21, 0), V(-30.04, 1.21, 0)), False)
sketch3.addGeometry(Part.LineSegment(V(-30.04, 1.21, 0), V(-27.94, 2.42, 0)), False)
sketch3.addGeometry(Part.LineSegment(V(-27.94, 2.42, 0), V(-25.84, 1.21, 0)), False)
sketch3.addGeometry(Part.LineSegment(V(-25.84, 1.21, 0), V(-25.84, -1.21, 0)), False)
sketch3.addGeometry(Part.LineSegment(V(-25.84, -1.21, 0), V(-27.44, -2.71, 0)), False)
sketch3.addGeometry(Part.LineSegment(V(-27.44, -2.71, 0), V(-27.94, -2.42, 0)), False)
sketch3.addGeometry(Part.LineSegment(V(-27.94, -2.42, 0), V(-30.04, -1.21, 0)), False)
sketch3.addConstraint(Sketcher.Constraint("Coincident", 0, 2, 1, 1))
sketch3.addConstraint(Sketcher.Constraint("Coincident", 1, 2, 2, 1))
sketch3.addConstraint(Sketcher.Constraint("Coincident", 2, 2, 3, 1))
sketch3.addConstraint(Sketcher.Constraint("Coincident", 3, 2, 4, 1))
sketch3.addConstraint(Sketcher.Constraint("Coincident", 4, 2, 5, 1))
sketch3.addConstraint(Sketcher.Constraint("Coincident", 5, 2, 6, 1))
sketch3.addConstraint(Sketcher.Constraint("Coincident", 6, 2, 7, 1))
sketch3.addConstraint(Sketcher.Constraint("Coincident", 7, 2, 0, 1))
sketch3.addConstraint(Sketcher.Constraint("Coincident", 8, 2, 9, 1))
sketch3.addConstraint(Sketcher.Constraint("Coincident", 9, 2, 10, 1))
sketch3.addConstraint(Sketcher.Constraint("Coincident", 10, 2, 11, 1))
sketch3.addConstraint(Sketcher.Constraint("Coincident", 11, 2, 12, 1))
sketch3.addConstraint(Sketcher.Constraint("Coincident", 12, 2, 13, 1))
sketch3.addConstraint(Sketcher.Constraint("Coincident", 13, 2, 14, 1))
sketch3.addConstraint(Sketcher.Constraint("Coincident", 14, 2, 8, 1))
sketch3.addConstraint(Sketcher.Constraint("Coincident", 15, 2, 16, 1))
sketch3.addConstraint(Sketcher.Constraint("Coincident", 16, 2, 17, 1))
sketch3.addConstraint(Sketcher.Constraint("Coincident", 17, 2, 18, 1))
sketch3.addConstraint(Sketcher.Constraint("Coincident", 18, 2, 19, 1))
sketch3.addConstraint(Sketcher.Constraint("Coincident", 19, 2, 20, 1))
sketch3.addConstraint(Sketcher.Constraint("Coincident", 20, 2, 21, 1))
sketch3.addConstraint(Sketcher.Constraint("Coincident", 21, 2, 15, 1))
sketch3.addConstraint(Sketcher.Constraint("Coincident", 22, 2, 23, 1))
sketch3.addConstraint(Sketcher.Constraint("Coincident", 23, 2, 24, 1))
sketch3.addConstraint(Sketcher.Constraint("Coincident", 24, 2, 25, 1))
sketch3.addConstraint(Sketcher.Constraint("Coincident", 25, 2, 26, 1))
sketch3.addConstraint(Sketcher.Constraint("Coincident", 26, 2, 27, 1))
sketch3.addConstraint(Sketcher.Constraint("Coincident", 27, 2, 28, 1))
sketch3.addConstraint(Sketcher.Constraint("Coincident", 28, 2, 22, 1))
sketch3.addConstraint(Sketcher.Constraint("Coincident", 29, 2, 30, 1))
sketch3.addConstraint(Sketcher.Constraint("Coincident", 30, 2, 31, 1))
sketch3.addConstraint(Sketcher.Constraint("Coincident", 31, 2, 32, 1))
sketch3.addConstraint(Sketcher.Constraint("Coincident", 32, 2, 33, 1))
sketch3.addConstraint(Sketcher.Constraint("Coincident", 33, 2, 34, 1))
sketch3.addConstraint(Sketcher.Constraint("Coincident", 34, 2, 35, 1))
sketch3.addConstraint(Sketcher.Constraint("Coincident", 35, 2, 29, 1))
sketch3.addConstraint(Sketcher.Constraint("Horizontal", 1))
sketch3.addConstraint(Sketcher.Constraint("Horizontal", 5))
sketch3.addConstraint(Sketcher.Constraint("Vertical", 9))
sketch3.addConstraint(Sketcher.Constraint("Vertical", 13))
sketch3.addConstraint(Sketcher.Constraint("Vertical", 29))
sketch3.addConstraint(Sketcher.Constraint("Vertical", 32))
sketch3.addConstraint(Sketcher.Constraint("Symmetric", 9, 2, 29, 2, -1, 1))
sketch3.addConstraint(Sketcher.Constraint("Symmetric", 10, 2, 30, 2, -1, 1))
sketch3.addConstraint(Sketcher.Constraint("Symmetric", 12, 2, 31, 2, -1, 1))
sketch3.addConstraint(Sketcher.Constraint("Symmetric", 14, 2, 34, 2, -1, 1))
sketch3.addConstraint(Sketcher.Constraint("Symmetric", 2, 2, 7, 2, -2))
sketch3.addConstraint(Sketcher.Constraint("Symmetric", 16, 2, 22, 2, -2))
sketch3.addConstraint(Sketcher.Constraint("Symmetric", 15, 2, 23, 2, -2))
sketch3.addConstraint(Sketcher.Constraint("Symmetric", 21, 2, 24, 2, -2))
sketch3.addConstraint(Sketcher.Constraint("Symmetric", 20, 2, 25, 2, -2))
sketch3.addConstraint(Sketcher.Constraint("Symmetric", 19, 2, 26, 2, -2))
sketch3.addConstraint(Sketcher.Constraint("Symmetric", 18, 2, 27, 2, -2))
sketch3.addConstraint(Sketcher.Constraint("Symmetric", 17, 2, 28, 2, -2))
sketch3.addConstraint(Sketcher.Constraint("Symmetric", 14, 2, 30, 2, -2))
sketch3.addConstraint(Sketcher.Constraint("Parallel", 2, 3))
sketch3.addConstraint(Sketcher.Constraint("Parallel", 0, 7))
sketch3.addConstraint(Sketcher.Constraint("Perpendicular", 7, 8))
sketch3.addConstraint(Sketcher.Constraint("Perpendicular", 3, 10))
sketch3.addConstraint(Sketcher.Constraint("Parallel", 10, 11))
sketch3.addConstraint(Sketcher.Constraint("Parallel", 11, 14))
sketch3.addConstraint(Sketcher.Constraint("Parallel", 15, 18))
sketch3.addConstraint(Sketcher.Constraint("Parallel", 16, 19))
sketch3.addConstraint(Sketcher.Constraint("Parallel", 19, 20))
sketch3.addConstraint(Sketcher.Constraint("Parallel", 18, 21))
sketch3.addConstraint(Sketcher.Constraint("Perpendicular", 17, 22))
sketch3.addConstraint(Sketcher.Constraint("Perpendicular", 21, 23))
sketch3.addConstraint(Sketcher.Constraint("Parallel", 8, 31))
sketch3.addConstraint(Sketcher.Constraint("Parallel", 31, 34))
sketch3.addConstraint(Sketcher.Constraint("Parallel", 34, 35))
sketch3.addConstraint(Sketcher.Constraint("Horizontal", 9, 2, 12, 2))
sketch3.addConstraint(Sketcher.Constraint("Horizontal", 8, 2, 13, 2))
sketch3.addConstraint(Sketcher.Constraint("Horizontal", 12, 2, 32, 2))
sketch3.addConstraint(Sketcher.Constraint("Vertical", 1, 2, 4, 2))
sketch3.addConstraint(Sketcher.Constraint("Vertical", 0, 2, 5, 2))
sketch3.addConstraint(Sketcher.Constraint("Equal", 5, 9))
sketch3.addConstraint(Sketcher.Constraint("Equal", 2, 8))
sketch3.addConstraint(Sketcher.Constraint("Equal", 14, 15))
sketch3.addConstraint(Sketcher.Constraint("Equal", 15, 16))
sketch3.addConstraint(Sketcher.Constraint("Equal", 16, 17))
sketch3.addConstraint(Sketcher.Constraint("Equal", 17, 18))
sketch3.addConstraint(Sketcher.Constraint("Equal", 18, 19))
sketch3.addConstraint(Sketcher.Constraint("Equal", 19, 20))
sketch3.addConstraint(Sketcher.Constraint("Angle", 0, Q("-120 deg")))
sketch3.addConstraint(Sketcher.Constraint("DistanceY", 1, 2, 2, 2, 2.1))
sketch3.addConstraint(Sketcher.Constraint("DistanceY", 2, 2, 4, 2, 2.1))
sketch3.addConstraint(Sketcher.Constraint("DistanceY", 0, 2, -1, 1, 30.04))
sketch3.addConstraint(Sketcher.Constraint("DistanceX", -1, 1, 8, 2, 30.04))
sketch3.addConstraint(Sketcher.Constraint("DistanceX", 22, 2, 19, 2, 55.88))
sketch3.addConstraint(Sketcher.Constraint("DistanceX", 1, 2, 1, 1, 2.424871))
sketch3.addConstraint(Sketcher.Constraint("Distance", 7, 0.47994))
sketch3.addConstraint(Sketcher.Constraint("Distance", 11, 0.74182))
sketch3.addConstraint(Sketcher.Constraint("DistanceX", 3, 2, -1, 1, 2.92344))
sketch3.addConstraint(Sketcher.Constraint("DistanceY", -1, 1, 20, 2, 60.754848))
sketch3.addConstraint(Sketcher.Constraint("DistanceY", 33, 2, -1, 1, 2.711749))
pocket1 = body.newObject("PartDesign::Pocket", "Pocket")
pocket1.Profile = sketch3
pocket1.Length = 1.8
pocket1.Reversed = True

doc.recompute()
